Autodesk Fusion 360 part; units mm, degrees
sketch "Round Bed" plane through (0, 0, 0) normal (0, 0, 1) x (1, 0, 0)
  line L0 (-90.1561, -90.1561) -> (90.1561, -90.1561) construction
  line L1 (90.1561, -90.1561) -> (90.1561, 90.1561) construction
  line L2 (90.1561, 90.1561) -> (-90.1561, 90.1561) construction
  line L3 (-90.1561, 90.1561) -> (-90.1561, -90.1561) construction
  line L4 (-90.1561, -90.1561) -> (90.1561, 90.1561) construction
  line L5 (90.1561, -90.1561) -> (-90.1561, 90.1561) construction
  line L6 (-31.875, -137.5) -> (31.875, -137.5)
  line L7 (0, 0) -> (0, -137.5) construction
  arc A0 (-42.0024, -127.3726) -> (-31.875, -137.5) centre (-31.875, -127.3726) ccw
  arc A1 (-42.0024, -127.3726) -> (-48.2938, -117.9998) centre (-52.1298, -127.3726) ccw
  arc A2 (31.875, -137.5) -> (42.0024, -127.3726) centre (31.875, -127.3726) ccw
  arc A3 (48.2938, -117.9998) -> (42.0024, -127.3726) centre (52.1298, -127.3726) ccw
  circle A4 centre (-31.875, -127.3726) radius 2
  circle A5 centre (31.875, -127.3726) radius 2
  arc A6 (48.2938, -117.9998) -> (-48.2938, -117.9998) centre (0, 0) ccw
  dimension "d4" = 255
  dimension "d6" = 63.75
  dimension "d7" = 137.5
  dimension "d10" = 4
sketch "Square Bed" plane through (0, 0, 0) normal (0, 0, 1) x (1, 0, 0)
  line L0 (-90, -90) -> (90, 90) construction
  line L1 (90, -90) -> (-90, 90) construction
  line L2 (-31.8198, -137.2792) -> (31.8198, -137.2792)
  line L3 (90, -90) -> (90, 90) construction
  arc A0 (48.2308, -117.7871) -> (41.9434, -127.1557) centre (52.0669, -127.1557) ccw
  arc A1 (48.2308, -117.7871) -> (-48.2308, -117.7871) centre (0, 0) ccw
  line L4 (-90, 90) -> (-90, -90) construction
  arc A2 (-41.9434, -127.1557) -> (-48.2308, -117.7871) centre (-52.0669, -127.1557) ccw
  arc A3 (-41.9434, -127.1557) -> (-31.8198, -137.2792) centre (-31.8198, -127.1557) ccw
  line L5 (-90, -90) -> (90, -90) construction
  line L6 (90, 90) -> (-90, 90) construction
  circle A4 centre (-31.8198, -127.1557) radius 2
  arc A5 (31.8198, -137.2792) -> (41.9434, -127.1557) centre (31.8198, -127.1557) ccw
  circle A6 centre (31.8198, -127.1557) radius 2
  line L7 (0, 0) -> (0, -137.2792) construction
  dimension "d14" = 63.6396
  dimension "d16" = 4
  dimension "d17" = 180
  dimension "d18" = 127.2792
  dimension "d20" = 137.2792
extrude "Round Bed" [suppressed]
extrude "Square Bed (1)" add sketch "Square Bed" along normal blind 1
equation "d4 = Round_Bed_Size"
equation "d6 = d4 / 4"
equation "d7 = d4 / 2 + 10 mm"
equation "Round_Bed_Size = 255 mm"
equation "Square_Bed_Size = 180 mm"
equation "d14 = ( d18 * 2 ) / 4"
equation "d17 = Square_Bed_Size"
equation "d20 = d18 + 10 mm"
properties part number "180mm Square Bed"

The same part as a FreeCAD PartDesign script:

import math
import FreeCAD as App
import Part
import Sketcher
Q = App.Units.Quantity

doc = App.newDocument("Part")
body = doc.addObject("PartDesign::Body", "Body")

sketch1 = body.newObject("Sketcher::SketchObject", "Sketch")
sketch1.AttachmentSupport = (doc.getObject("XY_Plane"), [""])
sketch1.MapMode = "FlatFace"
sketch1.addGeometry([
    Part.ArcOfCircle(Part.Circle(App.Vector(-31.8198, -127.1557, 0), App.Vector(0, 0, 1), 10.1236), math.radians(180), math.radians(270)),
    Part.LineSegment(App.Vector(-31.8198, -137.2792, 0), App.Vector(31.8198, -137.2792, 0)),
    Part.ArcOfCircle(Part.Circle(App.Vector(31.8198, -127.1557, 0), App.Vector(0, 0, 1), 10.1235), math.radians(-90), math.radians(0)),
    Part.ArcOfCircle(Part.Circle(App.Vector(52.0669, -127.1557, 0), App.Vector(0, 0, 1), 10.123553), math.radians(112.26731), math.radians(180)),
    Part.ArcOfCircle(Part.Circle(App.Vector(0, 0, 0), App.Vector(0, 0, 1), 127.279264), math.radians(-67.732157), math.radians(247.732157)),
    Part.ArcOfCircle(Part.Circle(App.Vector(-52.0669, -127.1557, 0), App.Vector(0, 0, 1), 10.1235), math.radians(0), math.radians(67.73269)),
    Part.Circle(App.Vector(-31.8198, -127.1557, 0), App.Vector(0, 0, 1), 2),
    Part.Circle(App.Vector(31.8198, -127.1557, 0), App.Vector(0, 0, 1), 2),
], False)
sketch1.addConstraint([
    Sketcher.Constraint("Tangent", 0, 2, 1, 1),
    Sketcher.Constraint("Tangent", 1, 2, 2, 1),
    Sketcher.Constraint("Tangent", 2, 2, 3, 2),
    Sketcher.Constraint("Tangent", 3, 1, 4, 1),
    Sketcher.Constraint("Tangent", 4, 2, 5, 2),
    Sketcher.Constraint("Tangent", 5, 1, 0, 1),
    Sketcher.Constraint("Horizontal", 1),
    Sketcher.Constraint("Coincident", 4, 3, -1, 1),
    Sketcher.Constraint("Coincident", 6, 3, 0, 3),
    Sketcher.Constraint("Coincident", 7, 3, 2, 3),
    Sketcher.Constraint("Equal", 0, 2),
    Sketcher.Constraint("Equal", 2, 3),
    Sketcher.Constraint("Equal", 3, 5),
    Sketcher.Constraint("Equal", 6, 7),
    Sketcher.Constraint("Horizontal", 2, 3, 3, 3),
    Sketcher.Constraint("Horizontal", 3, 3, 5, 3),
    Sketcher.Constraint("Diameter", 6, Q("4 mm")),
    Sketcher.Constraint("Radius", 4, Q("127.2793 mm")),
    Sketcher.Constraint("DistanceX", 1, 1, 1, 2, Q("63.6396 mm")),
    Sketcher.Constraint("DistanceY", 0, 2, -1, 1, Q("137.2793 mm")),
])
pad1 = body.newObject("PartDesign::Pad", "Pad")
pad1.Profile = sketch1
pad1.Length = 1

doc.recompute()
